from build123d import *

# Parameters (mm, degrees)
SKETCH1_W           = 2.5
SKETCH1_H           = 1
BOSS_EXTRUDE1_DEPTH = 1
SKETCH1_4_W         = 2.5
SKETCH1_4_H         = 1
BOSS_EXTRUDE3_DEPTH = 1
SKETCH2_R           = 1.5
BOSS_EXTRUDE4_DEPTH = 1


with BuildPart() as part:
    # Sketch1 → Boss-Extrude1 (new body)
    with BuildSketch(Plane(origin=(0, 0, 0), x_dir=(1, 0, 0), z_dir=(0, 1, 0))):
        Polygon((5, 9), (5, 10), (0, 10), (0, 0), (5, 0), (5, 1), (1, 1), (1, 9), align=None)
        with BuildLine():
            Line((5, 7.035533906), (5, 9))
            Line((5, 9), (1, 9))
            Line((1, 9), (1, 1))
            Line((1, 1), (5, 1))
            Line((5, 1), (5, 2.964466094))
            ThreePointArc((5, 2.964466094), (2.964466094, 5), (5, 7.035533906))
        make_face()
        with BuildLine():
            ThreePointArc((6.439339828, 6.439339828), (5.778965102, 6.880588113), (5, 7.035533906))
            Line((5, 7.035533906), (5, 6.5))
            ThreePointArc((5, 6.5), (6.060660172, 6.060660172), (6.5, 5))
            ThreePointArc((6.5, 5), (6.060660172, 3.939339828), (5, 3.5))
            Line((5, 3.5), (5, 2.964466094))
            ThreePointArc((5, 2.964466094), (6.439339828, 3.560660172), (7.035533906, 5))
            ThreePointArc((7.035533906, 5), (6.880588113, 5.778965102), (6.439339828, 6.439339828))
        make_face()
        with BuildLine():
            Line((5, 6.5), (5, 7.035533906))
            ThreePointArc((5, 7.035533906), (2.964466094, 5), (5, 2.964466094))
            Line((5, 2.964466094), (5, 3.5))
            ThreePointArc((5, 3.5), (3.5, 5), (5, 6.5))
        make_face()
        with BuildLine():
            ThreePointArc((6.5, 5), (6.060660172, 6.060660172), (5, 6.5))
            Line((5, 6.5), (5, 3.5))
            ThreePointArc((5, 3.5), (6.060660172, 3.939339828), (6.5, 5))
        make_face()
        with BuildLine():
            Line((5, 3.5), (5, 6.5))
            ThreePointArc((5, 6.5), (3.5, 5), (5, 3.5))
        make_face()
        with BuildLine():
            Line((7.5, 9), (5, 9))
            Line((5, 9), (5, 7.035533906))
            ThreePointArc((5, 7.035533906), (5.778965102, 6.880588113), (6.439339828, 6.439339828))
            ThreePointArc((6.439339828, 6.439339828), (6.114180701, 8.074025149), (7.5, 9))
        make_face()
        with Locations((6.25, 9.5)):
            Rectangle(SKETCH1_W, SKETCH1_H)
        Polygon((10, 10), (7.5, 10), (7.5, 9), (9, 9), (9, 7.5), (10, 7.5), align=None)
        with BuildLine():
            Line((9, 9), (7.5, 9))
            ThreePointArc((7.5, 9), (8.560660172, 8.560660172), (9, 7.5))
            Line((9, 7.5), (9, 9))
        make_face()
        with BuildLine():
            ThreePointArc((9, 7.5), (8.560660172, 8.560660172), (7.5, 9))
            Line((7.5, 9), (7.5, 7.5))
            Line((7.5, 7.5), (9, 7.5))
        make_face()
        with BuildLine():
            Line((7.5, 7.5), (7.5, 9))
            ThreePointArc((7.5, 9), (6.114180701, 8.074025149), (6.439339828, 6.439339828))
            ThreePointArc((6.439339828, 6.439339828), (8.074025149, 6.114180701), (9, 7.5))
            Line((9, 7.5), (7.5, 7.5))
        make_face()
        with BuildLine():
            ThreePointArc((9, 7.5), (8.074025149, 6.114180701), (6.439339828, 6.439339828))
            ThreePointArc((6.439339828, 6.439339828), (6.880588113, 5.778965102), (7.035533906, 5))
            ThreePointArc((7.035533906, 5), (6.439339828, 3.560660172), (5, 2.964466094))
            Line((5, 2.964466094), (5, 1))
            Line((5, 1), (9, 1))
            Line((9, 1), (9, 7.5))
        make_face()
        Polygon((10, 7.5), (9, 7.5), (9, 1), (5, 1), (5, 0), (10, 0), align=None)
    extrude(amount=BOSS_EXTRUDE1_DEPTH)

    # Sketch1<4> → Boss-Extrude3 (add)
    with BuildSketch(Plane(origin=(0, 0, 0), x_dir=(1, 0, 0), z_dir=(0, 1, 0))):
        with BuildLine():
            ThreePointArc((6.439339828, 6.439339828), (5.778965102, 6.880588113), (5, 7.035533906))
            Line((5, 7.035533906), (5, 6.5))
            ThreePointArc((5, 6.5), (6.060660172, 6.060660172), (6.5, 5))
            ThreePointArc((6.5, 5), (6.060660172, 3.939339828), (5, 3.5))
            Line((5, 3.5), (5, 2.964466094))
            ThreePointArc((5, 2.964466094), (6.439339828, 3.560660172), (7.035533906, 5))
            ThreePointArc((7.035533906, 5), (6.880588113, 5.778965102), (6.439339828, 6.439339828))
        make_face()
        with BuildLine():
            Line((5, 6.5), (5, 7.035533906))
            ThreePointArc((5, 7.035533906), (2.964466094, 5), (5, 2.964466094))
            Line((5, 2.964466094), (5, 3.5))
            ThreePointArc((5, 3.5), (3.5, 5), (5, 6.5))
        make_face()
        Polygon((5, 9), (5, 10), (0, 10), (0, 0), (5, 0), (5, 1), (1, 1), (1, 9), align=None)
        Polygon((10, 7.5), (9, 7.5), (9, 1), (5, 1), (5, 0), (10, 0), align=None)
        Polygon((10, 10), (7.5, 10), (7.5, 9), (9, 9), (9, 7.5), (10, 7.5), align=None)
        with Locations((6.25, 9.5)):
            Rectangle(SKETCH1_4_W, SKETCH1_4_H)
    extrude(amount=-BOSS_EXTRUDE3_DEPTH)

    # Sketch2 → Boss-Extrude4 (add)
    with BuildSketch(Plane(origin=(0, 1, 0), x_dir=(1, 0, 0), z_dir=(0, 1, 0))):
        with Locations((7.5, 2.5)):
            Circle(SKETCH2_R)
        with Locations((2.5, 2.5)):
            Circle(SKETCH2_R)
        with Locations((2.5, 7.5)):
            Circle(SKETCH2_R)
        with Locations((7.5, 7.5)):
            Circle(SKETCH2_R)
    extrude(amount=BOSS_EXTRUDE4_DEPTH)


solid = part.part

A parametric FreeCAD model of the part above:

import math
import FreeCAD as App
import Part
import Sketcher

V = App.Vector

doc = App.newDocument("Part")
params = doc.addObject("Spreadsheet::Sheet", "Params")
for row, (alias, value) in enumerate([
    ("sketch1_width", "10 mm"),
    ("pad1_length", "1 mm"),
    ("sketch2_radius", "1.5 mm"),
    ("sketch2_width", "10 mm"),
    ("sketch2_width2", "8 mm"),
    ("pad2_length", "1 mm"),
    ("sketch3_diameter", "3 mm"),
    ("pad3_length", "1 mm"),
], start=1):
    params.set(f"A{row}", alias)
    params.set(f"B{row}", "=" + value)
    params.setAlias(f"B{row}", alias)

body = doc.addObject("PartDesign::Body", "Body")

# Sketch on XZ plane
sketch1 = body.newObject("Sketcher::SketchObject", "Sketch")
sketch1.AttachmentSupport = (doc.getObject("XZ_Plane"), [""])
sketch1.MapMode = "FlatFace"
sketch1.addGeometry([
    Part.LineSegment(V(0, -10, 0), V(0, 0, 0)),
    Part.LineSegment(V(0, 0, 0), V(10, 0, 0)),
    Part.LineSegment(V(10, 0, 0), V(10, -10, 0)),
    Part.LineSegment(V(10, -10, 0), V(0, -10, 0)),
], False)
sketch1.addConstraint([
    Sketcher.Constraint("Coincident", 0, 2, 1, 1),
    Sketcher.Constraint("Coincident", 1, 2, 2, 1),
    Sketcher.Constraint("Coincident", 2, 2, 3, 1),
    Sketcher.Constraint("Coincident", 3, 2, 0, 1),
    Sketcher.Constraint("Vertical", 0),
    Sketcher.Constraint("Horizontal", 1),
    Sketcher.Constraint("Vertical", 2),
    Sketcher.Constraint("Horizontal", 3),
    Sketcher.Constraint("Coincident", 0, 2, -1, 1),
    Sketcher.Constraint("Equal", 3, 0),
    Sketcher.Constraint("DistanceX", 1, 1, 1, 2, 10.0),
])
sketch1.setExpression("Constraints[10]", "Params.sketch1_width")
pad1 = body.newObject("PartDesign::Pad", "Pad")
pad1.Profile = sketch1
pad1.setExpression("Length", "Params.pad1_length")
pad1.Reversed = True

# Sketch on XZ plane
sketch2 = body.newObject("Sketcher::SketchObject", "Sketch001")
sketch2.AttachmentSupport = (doc.getObject("XZ_Plane"), [""])
sketch2.MapMode = "FlatFace"
sketch2.addGeometry([
    Part.ArcOfCircle(Part.Circle(V(5, -5, 0), V(0, 0, 1), 2), math.radians(0), math.radians(90)),  # 0
    Part.ArcOfCircle(Part.Circle(V(5, -5, 0), V(0, 0, 1), 2), math.radians(-45), math.radians(0)),  # 1
    Part.ArcOfCircle(Part.Circle(V(5, -5, 0), V(0, 0, 1), 2), math.radians(-90), math.radians(-45)),  # 2
    Part.ArcOfCircle(Part.Circle(V(5, -5, 0), V(0, 0, 1), 2), math.radians(90), math.radians(270)),  # 3
    Part.ArcOfCircle(Part.Circle(V(5, -5, 0), V(0, 0, 1), 1.5), math.radians(0), math.radians(90)),  # 4
    Part.ArcOfCircle(Part.Circle(V(5, -5, 0), V(0, 0, 1), 1.5), math.radians(90), math.radians(270)),  # 5
    Part.ArcOfCircle(Part.Circle(V(5, -5, 0), V(0, 0, 1), 1.5), math.radians(-90), math.radians(0)),  # 6
    Part.LineSegment(V(0, -10, 0), V(0, 0, 0)),  # 7
    Part.LineSegment(V(0, 0, 0), V(10, 0, 0)),  # 8
    Part.LineSegment(V(10, 0, 0), V(10, -10, 0)),  # 9
    Part.LineSegment(V(10, -10, 0), V(0, -10, 0)),  # 10
    Part.LineSegment(V(9, -9, 0), V(9, -1, 0)),  # 11
    Part.LineSegment(V(9, -1, 0), V(1, -1, 0)),  # 12
    Part.LineSegment(V(1, -1, 0), V(1, -9, 0)),  # 13
    Part.LineSegment(V(1, -9, 0), V(9, -9, 0)),  # 14
], False)
sketch2.addConstraint([
    Sketcher.Constraint("Tangent", 0, 1, 1, 2),
    Sketcher.Constraint("Tangent", 1, 1, 2, 2),
    Sketcher.Constraint("Tangent", 2, 1, 3, 2),
    Sketcher.Constraint("Tangent", 3, 1, 0, 2),
    Sketcher.Constraint("Tangent", 4, 2, 5, 1),
    Sketcher.Constraint("Tangent", 5, 2, 6, 1),
    Sketcher.Constraint("Tangent", 6, 2, 4, 1),
    Sketcher.Constraint("Coincident", 7, 2, 8, 1),
    Sketcher.Constraint("Coincident", 8, 2, 9, 1),
    Sketcher.Constraint("Coincident", 9, 2, 10, 1),
    Sketcher.Constraint("Coincident", 10, 2, 7, 1),
    Sketcher.Constraint("Coincident", 11, 2, 12, 1),
    Sketcher.Constraint("Coincident", 12, 2, 13, 1),
    Sketcher.Constraint("Coincident", 13, 2, 14, 1),
    Sketcher.Constraint("Coincident", 14, 2, 11, 1),
    Sketcher.Constraint("Vertical", 7),
    Sketcher.Constraint("Horizontal", 8),
    Sketcher.Constraint("Vertical", 9),
    Sketcher.Constraint("Horizontal", 10),
    Sketcher.Constraint("Vertical", 11),
    Sketcher.Constraint("Horizontal", 12),
    Sketcher.Constraint("Vertical", 13),
    Sketcher.Constraint("Horizontal", 14),
    Sketcher.Constraint("Coincident", 7, 2, -1, 1),
    Sketcher.Constraint("Coincident", 4, 3, 0, 3),
    Sketcher.Constraint("Equal", 0, 1),
    Sketcher.Constraint("Horizontal", 6, 3, 0, 1),
    Sketcher.Constraint("Horizontal", 0, 1, 6, 2),
    Sketcher.Constraint("Vertical", 6, 3, 2, 1),
    Sketcher.Constraint("Vertical", 2, 1, 3, 1),
    Sketcher.Constraint("Vertical", 3, 1, 4, 2),
    Sketcher.Constraint("Vertical", 4, 2, 5, 2),
    Sketcher.Constraint("Equal", 10, 7),
    Sketcher.Constraint("Equal", 14, 11),
    Sketcher.Constraint("Radius", 4, 1.5),
    Sketcher.Constraint("DistanceX", 8, 1, 8, 2, 10.0),
    Sketcher.Constraint("DistanceX", 12, 2, 12, 1, 8.0),
    Sketcher.Constraint("DistanceX", -1, 1, 0, 3, 5.0),
    Sketcher.Constraint("DistanceY", 0, 3, -1, 1, 5.0),
    Sketcher.Constraint("DistanceX", -1, 1, 11, 2, 9.0),
    Sketcher.Constraint("DistanceY", 11, 2, -1, 1, 1.0),
    Sketcher.Constraint("Radius", 0, 2.035534),
    Sketcher.Constraint("DistanceX", -1, 1, 1, 1, 6.43934),
])
sketch2.setExpression("Constraints[34]", "Params.sketch2_radius")
sketch2.setExpression("Constraints[35]", "Params.sketch2_width")
sketch2.setExpression("Constraints[36]", "Params.sketch2_width2")
pad2 = body.newObject("PartDesign::Pad", "Pad001")
pad2.Profile = sketch2
pad2.setExpression("Length", "Params.pad2_length")

# Sketch on XZ plane
sketch3 = body.newObject("Sketcher::SketchObject", "Sketch002")
sketch3.AttachmentSupport = (doc.getObject("XZ_Plane"), [""])
sketch3.MapMode = "FlatFace"
sketch3.AttachmentOffset = App.Placement(V(0, 0, -1), App.Rotation())
sketch3.addGeometry([
    Part.Circle(V(7.5, -2.5, 0), V(0, 0, 1), 1.5),
    Part.Circle(V(2.5, -2.5, 0), V(0, 0, 1), 1.5),
    Part.Circle(V(2.5, -7.5, 0), V(0, 0, 1), 1.5),
    Part.Circle(V(7.5, -7.5, 0), V(0, 0, 1), 1.5),
], False)
sketch3.addConstraint([
    Sketcher.Constraint("Equal", 0, 1),
    Sketcher.Constraint("Equal", 1, 2),
    Sketcher.Constraint("Equal", 2, 3),
    Sketcher.Constraint("Horizontal", 0, 3, 1, 3),
    Sketcher.Constraint("Horizontal", 2, 3, 3, 3),
    Sketcher.Constraint("Vertical", 1, 3, 2, 3),
    Sketcher.Constraint("Vertical", 0, 3, 3, 3),
    Sketcher.Constraint("Diameter", 0, 3.0),
    Sketcher.Constraint("DistanceX", 1, 3, 0, 3, 5.0),
    Sketcher.Constraint("DistanceY", 2, 3, 1, 3, 5.0),
    Sketcher.Constraint("DistanceX", -1, 1, 0, 3, 7.5),
    Sketcher.Constraint("DistanceY", 0, 3, -1, 1, 2.5),
])
sketch3.setExpression("Constraints[7]", "Params.sketch3_diameter")
pad3 = body.newObject("PartDesign::Pad", "Pad002")
pad3.Profile = sketch3
pad3.setExpression("Length", "Params.pad3_length")
pad3.Reversed = True

doc.recompute()
